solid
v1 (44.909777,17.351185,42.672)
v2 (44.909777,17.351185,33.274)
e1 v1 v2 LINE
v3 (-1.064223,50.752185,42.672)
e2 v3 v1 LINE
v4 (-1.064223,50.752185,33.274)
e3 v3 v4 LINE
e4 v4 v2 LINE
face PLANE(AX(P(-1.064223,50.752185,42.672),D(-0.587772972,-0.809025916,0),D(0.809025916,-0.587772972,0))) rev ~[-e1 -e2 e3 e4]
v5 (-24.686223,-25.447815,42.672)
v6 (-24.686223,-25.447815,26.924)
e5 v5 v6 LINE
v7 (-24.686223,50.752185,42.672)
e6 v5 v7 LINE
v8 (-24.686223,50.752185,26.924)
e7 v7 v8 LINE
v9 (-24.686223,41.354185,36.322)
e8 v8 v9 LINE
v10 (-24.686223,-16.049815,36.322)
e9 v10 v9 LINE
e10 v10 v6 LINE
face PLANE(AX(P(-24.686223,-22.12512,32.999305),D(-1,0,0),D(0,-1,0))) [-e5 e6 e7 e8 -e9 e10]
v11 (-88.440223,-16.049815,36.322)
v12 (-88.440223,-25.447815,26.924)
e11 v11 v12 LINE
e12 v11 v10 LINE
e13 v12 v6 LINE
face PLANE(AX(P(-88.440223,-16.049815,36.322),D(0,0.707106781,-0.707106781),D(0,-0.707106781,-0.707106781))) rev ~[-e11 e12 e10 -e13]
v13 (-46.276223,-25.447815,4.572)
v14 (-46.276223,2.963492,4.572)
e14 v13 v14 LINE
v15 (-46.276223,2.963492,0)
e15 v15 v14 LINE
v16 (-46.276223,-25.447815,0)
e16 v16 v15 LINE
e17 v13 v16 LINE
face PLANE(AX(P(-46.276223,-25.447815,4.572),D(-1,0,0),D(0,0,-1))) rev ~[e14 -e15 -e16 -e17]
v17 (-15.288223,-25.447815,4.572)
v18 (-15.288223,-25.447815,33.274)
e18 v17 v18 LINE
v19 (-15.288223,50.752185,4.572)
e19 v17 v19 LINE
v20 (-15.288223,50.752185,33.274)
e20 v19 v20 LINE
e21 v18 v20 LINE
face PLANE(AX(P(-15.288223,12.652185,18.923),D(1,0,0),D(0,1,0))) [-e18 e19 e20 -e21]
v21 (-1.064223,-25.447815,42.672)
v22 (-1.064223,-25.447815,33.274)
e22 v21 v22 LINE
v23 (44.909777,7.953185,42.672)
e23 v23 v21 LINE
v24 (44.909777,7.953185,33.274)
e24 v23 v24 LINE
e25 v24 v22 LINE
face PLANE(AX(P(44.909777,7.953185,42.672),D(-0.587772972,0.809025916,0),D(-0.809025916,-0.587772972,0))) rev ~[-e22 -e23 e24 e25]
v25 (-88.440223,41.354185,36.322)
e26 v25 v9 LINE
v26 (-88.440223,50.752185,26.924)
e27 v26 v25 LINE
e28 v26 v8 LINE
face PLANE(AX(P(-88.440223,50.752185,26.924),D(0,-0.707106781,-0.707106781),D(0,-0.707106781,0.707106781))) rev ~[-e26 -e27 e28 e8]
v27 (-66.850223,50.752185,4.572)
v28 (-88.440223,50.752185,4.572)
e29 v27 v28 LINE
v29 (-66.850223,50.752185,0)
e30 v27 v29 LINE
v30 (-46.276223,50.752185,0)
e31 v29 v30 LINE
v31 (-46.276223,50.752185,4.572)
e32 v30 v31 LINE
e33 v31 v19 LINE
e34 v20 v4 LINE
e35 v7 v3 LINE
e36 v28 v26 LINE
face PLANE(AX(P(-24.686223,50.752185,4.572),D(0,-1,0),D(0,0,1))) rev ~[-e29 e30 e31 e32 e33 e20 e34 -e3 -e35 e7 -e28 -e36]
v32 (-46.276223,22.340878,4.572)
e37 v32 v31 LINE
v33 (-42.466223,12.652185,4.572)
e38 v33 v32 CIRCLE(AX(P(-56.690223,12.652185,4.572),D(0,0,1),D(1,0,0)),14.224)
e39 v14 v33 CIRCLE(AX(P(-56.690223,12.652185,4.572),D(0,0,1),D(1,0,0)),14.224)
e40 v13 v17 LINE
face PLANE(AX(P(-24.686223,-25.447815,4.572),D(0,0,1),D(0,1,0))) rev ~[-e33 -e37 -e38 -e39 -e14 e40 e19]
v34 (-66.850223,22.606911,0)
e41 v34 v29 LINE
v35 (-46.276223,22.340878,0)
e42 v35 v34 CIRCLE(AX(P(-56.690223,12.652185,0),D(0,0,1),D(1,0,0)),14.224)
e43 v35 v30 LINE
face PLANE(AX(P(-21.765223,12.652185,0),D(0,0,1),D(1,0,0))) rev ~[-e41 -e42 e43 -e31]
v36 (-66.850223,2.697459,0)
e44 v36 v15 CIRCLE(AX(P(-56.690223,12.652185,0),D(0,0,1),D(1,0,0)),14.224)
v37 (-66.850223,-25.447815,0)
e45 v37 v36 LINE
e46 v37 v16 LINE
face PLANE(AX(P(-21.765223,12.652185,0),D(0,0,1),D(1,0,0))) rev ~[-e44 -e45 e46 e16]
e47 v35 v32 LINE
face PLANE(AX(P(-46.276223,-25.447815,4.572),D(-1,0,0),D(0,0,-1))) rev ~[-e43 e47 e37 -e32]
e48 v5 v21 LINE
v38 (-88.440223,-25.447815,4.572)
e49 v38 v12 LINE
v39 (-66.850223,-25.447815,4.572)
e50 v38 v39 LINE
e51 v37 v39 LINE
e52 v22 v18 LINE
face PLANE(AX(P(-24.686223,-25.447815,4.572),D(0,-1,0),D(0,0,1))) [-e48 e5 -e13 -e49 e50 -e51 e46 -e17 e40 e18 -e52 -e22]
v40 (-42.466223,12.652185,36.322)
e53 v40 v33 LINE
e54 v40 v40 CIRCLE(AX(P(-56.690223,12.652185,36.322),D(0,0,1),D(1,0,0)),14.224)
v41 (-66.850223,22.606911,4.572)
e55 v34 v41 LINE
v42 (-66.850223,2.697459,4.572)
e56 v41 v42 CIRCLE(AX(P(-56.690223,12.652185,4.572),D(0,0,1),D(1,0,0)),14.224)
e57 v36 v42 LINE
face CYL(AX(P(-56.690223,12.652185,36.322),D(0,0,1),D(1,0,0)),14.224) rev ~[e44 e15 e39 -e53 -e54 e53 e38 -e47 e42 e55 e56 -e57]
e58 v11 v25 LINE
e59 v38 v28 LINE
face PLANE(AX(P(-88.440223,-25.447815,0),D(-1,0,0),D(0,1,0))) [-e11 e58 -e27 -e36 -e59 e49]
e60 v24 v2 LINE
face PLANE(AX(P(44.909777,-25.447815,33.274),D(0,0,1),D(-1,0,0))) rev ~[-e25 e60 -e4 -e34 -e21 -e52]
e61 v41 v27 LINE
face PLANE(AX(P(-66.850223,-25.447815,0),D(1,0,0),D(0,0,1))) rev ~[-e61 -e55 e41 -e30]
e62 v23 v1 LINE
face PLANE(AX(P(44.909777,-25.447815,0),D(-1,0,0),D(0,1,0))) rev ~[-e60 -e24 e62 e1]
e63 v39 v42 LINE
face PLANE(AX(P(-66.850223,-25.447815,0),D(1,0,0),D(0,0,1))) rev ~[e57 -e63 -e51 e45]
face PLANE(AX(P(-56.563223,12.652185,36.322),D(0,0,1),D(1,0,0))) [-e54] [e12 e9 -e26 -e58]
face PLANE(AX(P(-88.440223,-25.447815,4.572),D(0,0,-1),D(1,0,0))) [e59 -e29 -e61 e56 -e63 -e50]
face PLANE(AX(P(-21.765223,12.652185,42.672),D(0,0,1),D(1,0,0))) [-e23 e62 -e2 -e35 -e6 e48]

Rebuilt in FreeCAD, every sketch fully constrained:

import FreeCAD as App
import Part
import Sketcher

V = App.Vector
Q = App.Units.Quantity


def add_polygon(sketch, points):
    """Adds a closed chain of lines whose ends are joined by coincident constraints."""
    first, n = sketch.GeometryCount, len(points)
    for a, b in zip(points, points[1:] + points[:1]):
        sketch.addGeometry(Part.LineSegment(App.Vector(*a, 0), App.Vector(*b, 0)), False)
    for i in range(n):
        sketch.addConstraint(Sketcher.Constraint("Coincident", first + i, 2, first + (i + 1) % n, 1))

doc = App.newDocument("Part")
body = doc.addObject("PartDesign::Body", "Body")

# Sketch on XY plane
sketch1 = doc.addObject("Sketcher::SketchObject", "Sketch")
body.addObject(sketch1)
sketch1.AttachmentSupport = (doc.XY_Plane, [""])
sketch1.MapMode = "FlatFace"
add_polygon(sketch1, [(-88, 51), (-88, -25), (45, -25), (45, 51)])  # lines 0-3
sketch1.addConstraint([
    Sketcher.Constraint("Vertical", 0),
    Sketcher.Constraint("Horizontal", 1),
    Sketcher.Constraint("Vertical", 2),
    Sketcher.Constraint("Horizontal", 3),
    Sketcher.Constraint("DistanceY", 0, 2, 0, 1, Q("3 in")),
    Sketcher.Constraint("DistanceX", 1, 1, 1, 2, Q("5.25 in")),
    Sketcher.Constraint("DistanceX", 0, 2, -1, 1, Q("88.440223 mm")),
    Sketcher.Constraint("DistanceY", 0, 2, -1, 1, Q("25.447815 mm")),
])
pad1 = doc.addObject("PartDesign::Pad", "Pad")
body.addObject(pad1)
pad1.Profile = sketch1
pad1.Length = Q("1.68 in")

# Sketch on XZ plane
sketch2 = doc.addObject("Sketcher::SketchObject", "Sketch001")
body.addObject(sketch2)
sketch2.AttachmentSupport = (doc.XZ_Plane, [""])
sketch2.MapMode = "FlatFace"
sketch2.AttachmentOffset = App.Placement(V(0, 0, 25.447815), App.Rotation())
add_polygon(sketch2, [(-88.4, 4.6), (-88.4, 0), (-66.9, 0), (-66.9, 4.6)])  # lines 0-3
add_polygon(sketch2, [(44.9, 0), (44.9, 33.3), (-24.7, 33.3), (-24.7, 4.6), (-46.3, 4.6), (-46.3, 0)])  # lines 4-9
sketch2.addConstraint([
    Sketcher.Constraint("Vertical", 0),
    Sketcher.Constraint("Horizontal", 1),
    Sketcher.Constraint("Vertical", 2),
    Sketcher.Constraint("Horizontal", 3),
    Sketcher.Constraint("Vertical", 4),
    Sketcher.Constraint("Horizontal", 5),
    Sketcher.Constraint("Vertical", 6),
    Sketcher.Constraint("Horizontal", 7),
    Sketcher.Constraint("Vertical", 8),
    Sketcher.Constraint("Horizontal", 9),
    Sketcher.Constraint("PointOnObject", 0, 2, -1),
    Sketcher.Constraint("PointOnObject", 8, 2, -1),
    Sketcher.Constraint("Horizontal", 3, 2, 6, 2),
    Sketcher.Constraint("Equal", 3, 7),
    Sketcher.Constraint("DistanceX", 1, 1, 1, 2, Q("0.85 in")),
    Sketcher.Constraint("DistanceX", 5, 2, 5, 1, Q("2.74 in")),
    Sketcher.Constraint("DistanceY", 0, 2, 0, 1, Q("0.18 in")),
    Sketcher.Constraint("DistanceY", 4, 1, 4, 2, Q("1.31 in")),
    Sketcher.Constraint("DistanceX", 2, 2, 4, 2, Q("4.4 in")),
    Sketcher.Constraint("DistanceX", 0, 2, -1, 1, Q("88.440223 mm")),
])
pocket1 = doc.addObject("PartDesign::Pocket", "Pocket")
body.addObject(pocket1)
pocket1.Profile = sketch2
pocket1.Type = "ThroughAll"

# Sketch on XY plane
sketch3 = doc.addObject("Sketcher::SketchObject", "Sketch002")
body.addObject(sketch3)
sketch3.AttachmentSupport = (doc.XY_Plane, [""])
sketch3.MapMode = "FlatFace"
sketch3.AttachmentOffset = App.Placement(V(0, 0, 1.68 * 25.4), App.Rotation())
add_polygon(sketch3, [(45, 51), (-1, 51), (45, 17)])  # lines 0-2
add_polygon(sketch3, [(45, 8), (-1, -25), (45, -25)])  # lines 3-5
sketch3.addConstraint([
    Sketcher.Constraint("Horizontal", 0),
    Sketcher.Constraint("Vertical", 2),
    Sketcher.Constraint("Horizontal", 4),
    Sketcher.Constraint("Vertical", 5),
    Sketcher.Constraint("Vertical", 0, 2, 3, 2),
    Sketcher.Constraint("Vertical", 2, 2, 4, 2),
    Sketcher.Constraint("Equal", 2, 5),
    Sketcher.Constraint("DistanceY", 3, 2, 0, 2, Q("3 in")),
    Sketcher.Constraint("DistanceX", 0, 2, 0, 1, Q("1.81 in")),
    Sketcher.Constraint("DistanceY", 2, 1, 2, 2, Q("1.315 in")),
    Sketcher.Constraint("DistanceX", 0, 2, -1, 1, Q("1.064223 mm")),
    Sketcher.Constraint("DistanceY", -1, 1, 0, 2, Q("50.752185 mm")),
])
pocket2 = doc.addObject("PartDesign::Pocket", "Pocket001")
body.addObject(pocket2)
pocket2.Profile = sketch3
pocket2.Type = "ThroughAll"

# Sketch on XY plane
sketch4 = doc.addObject("Sketcher::SketchObject", "Sketch003")
body.addObject(sketch4)
sketch4.AttachmentSupport = (doc.XY_Plane, [""])
sketch4.MapMode = "FlatFace"
sketch4.AttachmentOffset = App.Placement(V(0, 0, 1.68 * 25.4), App.Rotation())
add_polygon(sketch4, [(-88, 51), (-88, -25), (-25, -25), (-25, 51)])  # lines 0-3
sketch4.addConstraint([
    Sketcher.Constraint("Vertical", 0),
    Sketcher.Constraint("Horizontal", 1),
    Sketcher.Constraint("Vertical", 2),
    Sketcher.Constraint("Horizontal", 3),
    Sketcher.Constraint("DistanceY", 0, 2, 0, 1, Q("3 in")),
    Sketcher.Constraint("DistanceX", 1, 1, 1, 2, Q("2.51 in")),
    Sketcher.Constraint("DistanceX", 0, 2, -1, 1, Q("88.440223 mm")),
    Sketcher.Constraint("DistanceY", 0, 2, -1, 1, Q("25.447815 mm")),
])
pocket3 = doc.addObject("PartDesign::Pocket", "Pocket002")
body.addObject(pocket3)
pocket3.Profile = sketch4
pocket3.Length = Q("0.25 in")

# Sketch on YZ plane
sketch5 = doc.addObject("Sketcher::SketchObject", "Sketch004")
body.addObject(sketch5)
sketch5.AttachmentSupport = (doc.YZ_Plane, [""])
sketch5.MapMode = "FlatFace"
sketch5.AttachmentOffset = App.Placement(V(0, 0, -24.686223), App.Rotation())
add_polygon(sketch5, [(-25, 33), (-25, 5), (51, 5), (51, 33)])  # lines 0-3
sketch5.addConstraint([
    Sketcher.Constraint("Vertical", 0),
    Sketcher.Constraint("Horizontal", 1),
    Sketcher.Constraint("Vertical", 2),
    Sketcher.Constraint("Horizontal", 3),
    Sketcher.Constraint("DistanceX", 1, 1, 1, 2, Q("3 in")),
    Sketcher.Constraint("DistanceY", 0, 2, 0, 1, Q("1.13 in")),
    Sketcher.Constraint("DistanceY", -1, 1, 0, 2, Q("0.18 in")),
    Sketcher.Constraint("DistanceX", 0, 2, -1, 1, Q("25.447815 mm")),
])
pad2 = doc.addObject("PartDesign::Pad", "Pad001")
body.addObject(pad2)
pad2.Profile = sketch5
pad2.Length = Q("0.37 in")

# Sketch on YZ plane
sketch6 = doc.addObject("Sketcher::SketchObject", "Sketch005")
body.addObject(sketch6)
sketch6.AttachmentSupport = (doc.YZ_Plane, [""])
sketch6.MapMode = "FlatFace"
sketch6.AttachmentOffset = App.Placement(V(0, 0, -88.440223), App.Rotation())
add_polygon(sketch6, [(51, 27), (41, 36), (51, 36)])  # lines 0-2
add_polygon(sketch6, [(-25, 36), (-16, 36), (-25, 27)])  # lines 3-5
sketch6.addConstraint([
    Sketcher.Constraint("Horizontal", 1),
    Sketcher.Constraint("Vertical", 2),
    Sketcher.Constraint("Horizontal", 3),
    Sketcher.Constraint("Vertical", 5),
    Sketcher.Constraint("Perpendicular", 0, 4),
    Sketcher.Constraint("Horizontal", 1, 2, 3, 2),
    Sketcher.Constraint("Horizontal", 2, 2, 4, 2),
    Sketcher.Constraint("Equal", 1, 3),
    Sketcher.Constraint("DistanceX", 4, 2, 2, 2, Q("3 in")),
    Sketcher.Constraint("DistanceX", 1, 1, 1, 2, Q("0.37 in")),
    Sketcher.Constraint("DistanceY", -1, 1, 0, 2, Q("1.43 in")),
    Sketcher.Constraint("DistanceX", -1, 1, 0, 2, Q("41.354185 mm")),
])
pocket4 = doc.addObject("PartDesign::Pocket", "Pocket003")
body.addObject(pocket4)
pocket4.Profile = sketch6
pocket4.Length = Q("2.51 in")
pocket4.Reversed = True

# Sketch on XY plane
sketch7 = doc.addObject("Sketcher::SketchObject", "Sketch006")
body.addObject(sketch7)
sketch7.AttachmentSupport = (doc.XY_Plane, [""])
sketch7.MapMode = "FlatFace"
sketch7.AttachmentOffset = App.Placement(V(0, 0, 1.43 * 25.4), App.Rotation())
sketch7.addGeometry(Part.Circle(V(-57, 13, 0), V(0, 0, 1), 14), False)
sketch7.addConstraint([
    Sketcher.Constraint("Diameter", 0, Q("1.12 in")),
    Sketcher.Constraint("DistanceX", 0, 3, -1, 1, Q("56.690223 mm")),
    Sketcher.Constraint("DistanceY", -1, 1, 0, 3, Q("12.652185 mm")),
])
pocket5 = doc.addObject("PartDesign::Pocket", "Pocket004")
body.addObject(pocket5)
pocket5.Profile = sketch7
pocket5.Type = "ThroughAll"

doc.recompute()
